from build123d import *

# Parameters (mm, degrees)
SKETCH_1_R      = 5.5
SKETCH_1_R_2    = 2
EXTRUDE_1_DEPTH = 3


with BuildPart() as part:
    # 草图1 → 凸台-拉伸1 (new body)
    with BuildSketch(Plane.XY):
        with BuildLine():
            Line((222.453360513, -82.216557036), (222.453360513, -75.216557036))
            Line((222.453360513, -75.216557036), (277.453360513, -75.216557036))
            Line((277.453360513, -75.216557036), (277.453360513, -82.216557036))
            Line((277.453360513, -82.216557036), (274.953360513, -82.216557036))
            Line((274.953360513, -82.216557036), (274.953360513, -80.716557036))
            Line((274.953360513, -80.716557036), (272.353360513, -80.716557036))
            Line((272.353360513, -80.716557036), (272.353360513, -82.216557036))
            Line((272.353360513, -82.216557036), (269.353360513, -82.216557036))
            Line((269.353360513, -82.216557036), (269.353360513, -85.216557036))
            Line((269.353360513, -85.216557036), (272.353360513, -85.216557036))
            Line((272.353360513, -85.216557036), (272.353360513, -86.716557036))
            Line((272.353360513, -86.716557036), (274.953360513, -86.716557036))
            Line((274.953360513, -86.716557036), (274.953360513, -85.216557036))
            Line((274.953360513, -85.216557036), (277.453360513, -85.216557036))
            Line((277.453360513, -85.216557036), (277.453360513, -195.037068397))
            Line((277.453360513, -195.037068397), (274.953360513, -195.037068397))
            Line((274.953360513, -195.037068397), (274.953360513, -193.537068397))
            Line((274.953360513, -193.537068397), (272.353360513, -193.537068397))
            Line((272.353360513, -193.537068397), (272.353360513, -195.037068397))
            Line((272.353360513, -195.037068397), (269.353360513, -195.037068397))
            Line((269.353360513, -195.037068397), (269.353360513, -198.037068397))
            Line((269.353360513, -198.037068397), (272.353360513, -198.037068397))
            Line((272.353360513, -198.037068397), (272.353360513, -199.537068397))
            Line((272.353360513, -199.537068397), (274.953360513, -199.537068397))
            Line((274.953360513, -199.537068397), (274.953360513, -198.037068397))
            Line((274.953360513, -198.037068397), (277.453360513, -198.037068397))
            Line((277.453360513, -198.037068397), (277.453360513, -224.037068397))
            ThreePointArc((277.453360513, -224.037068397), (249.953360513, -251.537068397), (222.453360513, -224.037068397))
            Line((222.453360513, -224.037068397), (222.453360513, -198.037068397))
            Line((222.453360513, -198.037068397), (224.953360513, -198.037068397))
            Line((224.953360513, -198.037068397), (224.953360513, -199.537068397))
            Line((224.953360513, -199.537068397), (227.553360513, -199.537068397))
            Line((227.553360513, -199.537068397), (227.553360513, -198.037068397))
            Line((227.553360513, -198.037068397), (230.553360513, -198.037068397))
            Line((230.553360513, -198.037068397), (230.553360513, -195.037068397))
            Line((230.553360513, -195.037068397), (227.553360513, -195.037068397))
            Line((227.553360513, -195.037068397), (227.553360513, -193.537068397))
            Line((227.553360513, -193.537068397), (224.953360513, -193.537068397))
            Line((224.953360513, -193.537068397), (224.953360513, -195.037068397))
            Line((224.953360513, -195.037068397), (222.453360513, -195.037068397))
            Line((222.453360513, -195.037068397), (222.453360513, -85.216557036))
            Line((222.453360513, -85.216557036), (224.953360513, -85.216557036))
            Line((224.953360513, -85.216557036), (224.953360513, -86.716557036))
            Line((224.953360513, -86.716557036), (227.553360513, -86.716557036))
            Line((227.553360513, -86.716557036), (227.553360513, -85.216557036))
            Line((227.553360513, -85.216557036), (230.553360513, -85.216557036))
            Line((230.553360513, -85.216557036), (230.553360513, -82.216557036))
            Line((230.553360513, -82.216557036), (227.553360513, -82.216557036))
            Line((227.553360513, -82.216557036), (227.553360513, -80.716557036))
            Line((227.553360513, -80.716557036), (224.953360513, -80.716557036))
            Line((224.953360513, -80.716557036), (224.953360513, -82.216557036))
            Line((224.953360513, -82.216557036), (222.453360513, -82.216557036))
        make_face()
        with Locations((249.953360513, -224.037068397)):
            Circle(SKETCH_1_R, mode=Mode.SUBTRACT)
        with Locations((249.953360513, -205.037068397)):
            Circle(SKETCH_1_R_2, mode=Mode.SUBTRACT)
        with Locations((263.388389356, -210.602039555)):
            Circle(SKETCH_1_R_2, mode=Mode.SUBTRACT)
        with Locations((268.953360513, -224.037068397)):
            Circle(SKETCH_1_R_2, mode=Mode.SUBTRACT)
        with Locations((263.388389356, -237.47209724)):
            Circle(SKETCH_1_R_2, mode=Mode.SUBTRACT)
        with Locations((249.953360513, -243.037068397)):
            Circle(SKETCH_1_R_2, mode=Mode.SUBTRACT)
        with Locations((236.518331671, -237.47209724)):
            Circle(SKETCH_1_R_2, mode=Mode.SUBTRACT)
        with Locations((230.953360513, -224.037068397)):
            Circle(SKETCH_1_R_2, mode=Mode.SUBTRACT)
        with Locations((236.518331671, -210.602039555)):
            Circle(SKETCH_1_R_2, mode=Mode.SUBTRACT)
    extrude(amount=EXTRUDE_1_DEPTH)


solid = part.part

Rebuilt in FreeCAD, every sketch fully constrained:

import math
import FreeCAD as App
import Part
import Sketcher
Q = App.Units.Quantity

doc = App.newDocument("Part")
body = doc.addObject("PartDesign::Body", "Body")

# Sketch on XY plane
sketch1 = body.newObject("Sketcher::SketchObject", "Sketch")
sketch1.AttachmentSupport = (doc.getObject("XY_Plane"), [""])
sketch1.MapMode = "FlatFace"
sketch1.addGeometry(Part.LineSegment(App.Vector(222.5, -75.2, 0), App.Vector(222.5, -82.2, 0)), False)
sketch1.addGeometry(Part.LineSegment(App.Vector(222.5, -82.2, 0), App.Vector(225, -82.2, 0)), False)
sketch1.addGeometry(Part.LineSegment(App.Vector(225, -82.2, 0), App.Vector(225, -80.7, 0)), False)
sketch1.addGeometry(Part.LineSegment(App.Vector(225, -80.7, 0), App.Vector(227.6, -80.7, 0)), False)
sketch1.addGeometry(Part.LineSegment(App.Vector(227.6, -80.7, 0), App.Vector(227.6, -82.2, 0)), False)
sketch1.addGeometry(Part.LineSegment(App.Vector(227.6, -82.2, 0), App.Vector(230.6, -82.2, 0)), False)
sketch1.addGeometry(Part.LineSegment(App.Vector(230.6, -82.2, 0), App.Vector(230.6, -85.2, 0)), False)
sketch1.addGeometry(Part.LineSegment(App.Vector(230.6, -85.2, 0), App.Vector(227.6, -85.2, 0)), False)
sketch1.addGeometry(Part.LineSegment(App.Vector(227.6, -85.2, 0), App.Vector(227.6, -86.7, 0)), False)
sketch1.addGeometry(Part.LineSegment(App.Vector(227.6, -86.7, 0), App.Vector(225, -86.7, 0)), False)
sketch1.addGeometry(Part.LineSegment(App.Vector(225, -86.7, 0), App.Vector(225, -85.2, 0)), False)
sketch1.addGeometry(Part.LineSegment(App.Vector(225, -85.2, 0), App.Vector(222.5, -85.2, 0)), False)
sketch1.addGeometry(Part.LineSegment(App.Vector(222.5, -85.2, 0), App.Vector(222.5, -195, 0)), False)
sketch1.addGeometry(Part.LineSegment(App.Vector(222.5, -195, 0), App.Vector(225, -195, 0)), False)
sketch1.addGeometry(Part.LineSegment(App.Vector(225, -195, 0), App.Vector(225, -193.5, 0)), False)
sketch1.addGeometry(Part.LineSegment(App.Vector(225, -193.5, 0), App.Vector(227.6, -193.5, 0)), False)
sketch1.addGeometry(Part.LineSegment(App.Vector(227.6, -193.5, 0), App.Vector(227.6, -195, 0)), False)
sketch1.addGeometry(Part.LineSegment(App.Vector(227.6, -195, 0), App.Vector(230.6, -195, 0)), False)
sketch1.addGeometry(Part.LineSegment(App.Vector(230.6, -195, 0), App.Vector(230.6, -198, 0)), False)
sketch1.addGeometry(Part.LineSegment(App.Vector(230.6, -198, 0), App.Vector(227.6, -198, 0)), False)
sketch1.addGeometry(Part.LineSegment(App.Vector(227.6, -198, 0), App.Vector(227.6, -199.5, 0)), False)
sketch1.addGeometry(Part.LineSegment(App.Vector(227.6, -199.5, 0), App.Vector(225, -199.5, 0)), False)
sketch1.addGeometry(Part.LineSegment(App.Vector(225, -199.5, 0), App.Vector(225, -198, 0)), False)
sketch1.addGeometry(Part.LineSegment(App.Vector(225, -198, 0), App.Vector(222.5, -198, 0)), False)
sketch1.addGeometry(Part.LineSegment(App.Vector(222.5, -198, 0), App.Vector(222.5, -224, 0)), False)
sketch1.addGeometry(Part.ArcOfCircle(Part.Circle(App.Vector(250, -224, 0), App.Vector(0, 0, 1), 27.5), math.radians(180), math.radians(360)), False)
sketch1.addGeometry(Part.LineSegment(App.Vector(277.5, -224, 0), App.Vector(277.5, -198, 0)), False)
sketch1.addGeometry(Part.LineSegment(App.Vector(277.5, -198, 0), App.Vector(275, -198, 0)), False)
sketch1.addGeometry(Part.LineSegment(App.Vector(275, -198, 0), App.Vector(275, -199.5, 0)), False)
sketch1.addGeometry(Part.LineSegment(App.Vector(275, -199.5, 0), App.Vector(272.4, -199.5, 0)), False)
sketch1.addGeometry(Part.LineSegment(App.Vector(272.4, -199.5, 0), App.Vector(272.4, -198, 0)), False)
sketch1.addGeometry(Part.LineSegment(App.Vector(272.4, -198, 0), App.Vector(269.4, -198, 0)), False)
sketch1.addGeometry(Part.LineSegment(App.Vector(269.4, -198, 0), App.Vector(269.4, -195, 0)), False)
sketch1.addGeometry(Part.LineSegment(App.Vector(269.4, -195, 0), App.Vector(272.4, -195, 0)), False)
sketch1.addGeometry(Part.LineSegment(App.Vector(272.4, -195, 0), App.Vector(272.4, -193.5, 0)), False)
sketch1.addGeometry(Part.LineSegment(App.Vector(272.4, -193.5, 0), App.Vector(275, -193.5, 0)), False)
sketch1.addGeometry(Part.LineSegment(App.Vector(275, -193.5, 0), App.Vector(275, -195, 0)), False)
sketch1.addGeometry(Part.LineSegment(App.Vector(275, -195, 0), App.Vector(277.5, -195, 0)), False)
sketch1.addGeometry(Part.LineSegment(App.Vector(277.5, -195, 0), App.Vector(277.5, -85.2, 0)), False)
sketch1.addGeometry(Part.LineSegment(App.Vector(277.5, -85.2, 0), App.Vector(275, -85.2, 0)), False)
sketch1.addGeometry(Part.LineSegment(App.Vector(275, -85.2, 0), App.Vector(275, -86.7, 0)), False)
sketch1.addGeometry(Part.LineSegment(App.Vector(275, -86.7, 0), App.Vector(272.4, -86.7, 0)), False)
sketch1.addGeometry(Part.LineSegment(App.Vector(272.4, -86.7, 0), App.Vector(272.4, -85.2, 0)), False)
sketch1.addGeometry(Part.LineSegment(App.Vector(272.4, -85.2, 0), App.Vector(269.4, -85.2, 0)), False)
sketch1.addGeometry(Part.LineSegment(App.Vector(269.4, -85.2, 0), App.Vector(269.4, -82.2, 0)), False)
sketch1.addGeometry(Part.LineSegment(App.Vector(269.4, -82.2, 0), App.Vector(272.4, -82.2, 0)), False)
sketch1.addGeometry(Part.LineSegment(App.Vector(272.4, -82.2, 0), App.Vector(272.4, -80.7, 0)), False)
sketch1.addGeometry(Part.LineSegment(App.Vector(272.4, -80.7, 0), App.Vector(275, -80.7, 0)), False)
sketch1.addGeometry(Part.LineSegment(App.Vector(275, -80.7, 0), App.Vector(275, -82.2, 0)), False)
sketch1.addGeometry(Part.LineSegment(App.Vector(275, -82.2, 0), App.Vector(277.5, -82.2, 0)), False)
sketch1.addGeometry(Part.LineSegment(App.Vector(277.5, -82.2, 0), App.Vector(277.5, -75.2, 0)), False)
sketch1.addGeometry(Part.LineSegment(App.Vector(277.5, -75.2, 0), App.Vector(222.5, -75.2, 0)), False)
sketch1.addGeometry(Part.Circle(App.Vector(263.4, -237.5, 0), App.Vector(0, 0, 1), 2), False)
sketch1.addGeometry(Part.Circle(App.Vector(250, -243, 0), App.Vector(0, 0, 1), 2), False)
sketch1.addGeometry(Part.Circle(App.Vector(236.5, -237.5, 0), App.Vector(0, 0, 1), 2), False)
sketch1.addGeometry(Part.Circle(App.Vector(269, -224, 0), App.Vector(0, 0, 1), 2), False)
sketch1.addGeometry(Part.Circle(App.Vector(263.4, -210.6, 0), App.Vector(0, 0, 1), 2), False)
sketch1.addGeometry(Part.Circle(App.Vector(250, -224, 0), App.Vector(0, 0, 1), 5.5), False)
sketch1.addGeometry(Part.Circle(App.Vector(231, -224, 0), App.Vector(0, 0, 1), 2), False)
sketch1.addGeometry(Part.Circle(App.Vector(250, -205, 0), App.Vector(0, 0, 1), 2), False)
sketch1.addGeometry(Part.Circle(App.Vector(236.5, -210.6, 0), App.Vector(0, 0, 1), 2), False)
sketch1.addConstraint(Sketcher.Constraint("Coincident", 0, 2, 1, 1))
sketch1.addConstraint(Sketcher.Constraint("Coincident", 1, 2, 2, 1))
sketch1.addConstraint(Sketcher.Constraint("Coincident", 2, 2, 3, 1))
sketch1.addConstraint(Sketcher.Constraint("Coincident", 3, 2, 4, 1))
sketch1.addConstraint(Sketcher.Constraint("Coincident", 4, 2, 5, 1))
sketch1.addConstraint(Sketcher.Constraint("Coincident", 5, 2, 6, 1))
sketch1.addConstraint(Sketcher.Constraint("Coincident", 6, 2, 7, 1))
sketch1.addConstraint(Sketcher.Constraint("Coincident", 7, 2, 8, 1))
sketch1.addConstraint(Sketcher.Constraint("Coincident", 8, 2, 9, 1))
sketch1.addConstraint(Sketcher.Constraint("Coincident", 9, 2, 10, 1))
sketch1.addConstraint(Sketcher.Constraint("Coincident", 10, 2, 11, 1))
sketch1.addConstraint(Sketcher.Constraint("Coincident", 11, 2, 12, 1))
sketch1.addConstraint(Sketcher.Constraint("Coincident", 12, 2, 13, 1))
sketch1.addConstraint(Sketcher.Constraint("Coincident", 13, 2, 14, 1))
sketch1.addConstraint(Sketcher.Constraint("Coincident", 14, 2, 15, 1))
sketch1.addConstraint(Sketcher.Constraint("Coincident", 15, 2, 16, 1))
sketch1.addConstraint(Sketcher.Constraint("Coincident", 16, 2, 17, 1))
sketch1.addConstraint(Sketcher.Constraint("Coincident", 17, 2, 18, 1))
sketch1.addConstraint(Sketcher.Constraint("Coincident", 18, 2, 19, 1))
sketch1.addConstraint(Sketcher.Constraint("Coincident", 19, 2, 20, 1))
sketch1.addConstraint(Sketcher.Constraint("Coincident", 20, 2, 21, 1))
sketch1.addConstraint(Sketcher.Constraint("Coincident", 21, 2, 22, 1))
sketch1.addConstraint(Sketcher.Constraint("Coincident", 22, 2, 23, 1))
sketch1.addConstraint(Sketcher.Constraint("Coincident", 23, 2, 24, 1))
sketch1.addConstraint(Sketcher.Constraint("Tangent", 24, 2, 25, 1))
sketch1.addConstraint(Sketcher.Constraint("Tangent", 25, 2, 26, 1))
sketch1.addConstraint(Sketcher.Constraint("Coincident", 26, 2, 27, 1))
sketch1.addConstraint(Sketcher.Constraint("Coincident", 27, 2, 28, 1))
sketch1.addConstraint(Sketcher.Constraint("Coincident", 28, 2, 29, 1))
sketch1.addConstraint(Sketcher.Constraint("Coincident", 29, 2, 30, 1))
sketch1.addConstraint(Sketcher.Constraint("Coincident", 30, 2, 31, 1))
sketch1.addConstraint(Sketcher.Constraint("Coincident", 31, 2, 32, 1))
sketch1.addConstraint(Sketcher.Constraint("Coincident", 32, 2, 33, 1))
sketch1.addConstraint(Sketcher.Constraint("Coincident", 33, 2, 34, 1))
sketch1.addConstraint(Sketcher.Constraint("Coincident", 34, 2, 35, 1))
sketch1.addConstraint(Sketcher.Constraint("Coincident", 35, 2, 36, 1))
sketch1.addConstraint(Sketcher.Constraint("Coincident", 36, 2, 37, 1))
sketch1.addConstraint(Sketcher.Constraint("Coincident", 37, 2, 38, 1))
sketch1.addConstraint(Sketcher.Constraint("Coincident", 38, 2, 39, 1))
sketch1.addConstraint(Sketcher.Constraint("Coincident", 39, 2, 40, 1))
sketch1.addConstraint(Sketcher.Constraint("Coincident", 40, 2, 41, 1))
sketch1.addConstraint(Sketcher.Constraint("Coincident", 41, 2, 42, 1))
sketch1.addConstraint(Sketcher.Constraint("Coincident", 42, 2, 43, 1))
sketch1.addConstraint(Sketcher.Constraint("Coincident", 43, 2, 44, 1))
sketch1.addConstraint(Sketcher.Constraint("Coincident", 44, 2, 45, 1))
sketch1.addConstraint(Sketcher.Constraint("Coincident", 45, 2, 46, 1))
sketch1.addConstraint(Sketcher.Constraint("Coincident", 46, 2, 47, 1))
sketch1.addConstraint(Sketcher.Constraint("Coincident", 47, 2, 48, 1))
sketch1.addConstraint(Sketcher.Constraint("Coincident", 48, 2, 49, 1))
sketch1.addConstraint(Sketcher.Constraint("Coincident", 49, 2, 50, 1))
sketch1.addConstraint(Sketcher.Constraint("Coincident", 50, 2, 51, 1))
sketch1.addConstraint(Sketcher.Constraint("Coincident", 51, 2, 0, 1))
sketch1.addConstraint(Sketcher.Constraint("Vertical", 0))
sketch1.addConstraint(Sketcher.Constraint("Horizontal", 1))
sketch1.addConstraint(Sketcher.Constraint("Vertical", 2))
sketch1.addConstraint(Sketcher.Constraint("Horizontal", 3))
sketch1.addConstraint(Sketcher.Constraint("Vertical", 4))
sketch1.addConstraint(Sketcher.Constraint("Horizontal", 5))
sketch1.addConstraint(Sketcher.Constraint("Vertical", 6))
sketch1.addConstraint(Sketcher.Constraint("Horizontal", 7))
sketch1.addConstraint(Sketcher.Constraint("Vertical", 8))
sketch1.addConstraint(Sketcher.Constraint("Horizontal", 9))
sketch1.addConstraint(Sketcher.Constraint("Vertical", 10))
sketch1.addConstraint(Sketcher.Constraint("Horizontal", 11))
sketch1.addConstraint(Sketcher.Constraint("Vertical", 12))
sketch1.addConstraint(Sketcher.Constraint("Horizontal", 13))
sketch1.addConstraint(Sketcher.Constraint("Vertical", 14))
sketch1.addConstraint(Sketcher.Constraint("Horizontal", 15))
sketch1.addConstraint(Sketcher.Constraint("Vertical", 16))
sketch1.addConstraint(Sketcher.Constraint("Horizontal", 17))
sketch1.addConstraint(Sketcher.Constraint("Vertical", 18))
sketch1.addConstraint(Sketcher.Constraint("Horizontal", 19))
sketch1.addConstraint(Sketcher.Constraint("Vertical", 20))
sketch1.addConstraint(Sketcher.Constraint("Horizontal", 21))
sketch1.addConstraint(Sketcher.Constraint("Vertical", 22))
sketch1.addConstraint(Sketcher.Constraint("Horizontal", 23))
sketch1.addConstraint(Sketcher.Constraint("Vertical", 24))
sketch1.addConstraint(Sketcher.Constraint("Vertical", 26))
sketch1.addConstraint(Sketcher.Constraint("Horizontal", 27))
sketch1.addConstraint(Sketcher.Constraint("Vertical", 28))
sketch1.addConstraint(Sketcher.Constraint("Horizontal", 29))
sketch1.addConstraint(Sketcher.Constraint("Vertical", 30))
sketch1.addConstraint(Sketcher.Constraint("Horizontal", 31))
sketch1.addConstraint(Sketcher.Constraint("Vertical", 32))
sketch1.addConstraint(Sketcher.Constraint("Horizontal", 33))
sketch1.addConstraint(Sketcher.Constraint("Vertical", 34))
sketch1.addConstraint(Sketcher.Constraint("Horizontal", 35))
sketch1.addConstraint(Sketcher.Constraint("Vertical", 36))
sketch1.addConstraint(Sketcher.Constraint("Horizontal", 37))
sketch1.addConstraint(Sketcher.Constraint("Vertical", 38))
sketch1.addConstraint(Sketcher.Constraint("Horizontal", 39))
sketch1.addConstraint(Sketcher.Constraint("Vertical", 40))
sketch1.addConstraint(Sketcher.Constraint("Horizontal", 41))
sketch1.addConstraint(Sketcher.Constraint("Vertical", 42))
sketch1.addConstraint(Sketcher.Constraint("Horizontal", 43))
sketch1.addConstraint(Sketcher.Constraint("Vertical", 44))
sketch1.addConstraint(Sketcher.Constraint("Horizontal", 45))
sketch1.addConstraint(Sketcher.Constraint("Vertical", 46))
sketch1.addConstraint(Sketcher.Constraint("Horizontal", 47))
sketch1.addConstraint(Sketcher.Constraint("Vertical", 48))
sketch1.addConstraint(Sketcher.Constraint("Horizontal", 49))
sketch1.addConstraint(Sketcher.Constraint("Vertical", 50))
sketch1.addConstraint(Sketcher.Constraint("Horizontal", 51))
sketch1.addConstraint(Sketcher.Constraint("Coincident", 57, 3, 25, 3))
sketch1.addConstraint(Sketcher.Constraint("Equal", 52, 53))
sketch1.addConstraint(Sketcher.Constraint("Equal", 53, 54))
sketch1.addConstraint(Sketcher.Constraint("Equal", 54, 55))
sketch1.addConstraint(Sketcher.Constraint("Equal", 55, 56))
sketch1.addConstraint(Sketcher.Constraint("Equal", 56, 58))
sketch1.addConstraint(Sketcher.Constraint("Equal", 58, 59))
sketch1.addConstraint(Sketcher.Constraint("Equal", 59, 60))
sketch1.addConstraint(Sketcher.Constraint("Horizontal", 52, 3, 54, 3))
sketch1.addConstraint(Sketcher.Constraint("Horizontal", 25, 3, 55, 3))
sketch1.addConstraint(Sketcher.Constraint("Horizontal", 57, 3, 58, 3))
sketch1.addConstraint(Sketcher.Constraint("Horizontal", 56, 3, 60, 3))
sketch1.addConstraint(Sketcher.Constraint("Horizontal", 1, 2, 4, 2))
sketch1.addConstraint(Sketcher.Constraint("Horizontal", 7, 2, 10, 2))
sketch1.addConstraint(Sketcher.Constraint("Horizontal", 13, 2, 16, 2))
sketch1.addConstraint(Sketcher.Constraint("Horizontal", 19, 2, 22, 2))
sketch1.addConstraint(Sketcher.Constraint("Horizontal", 23, 2, 26, 2))
sketch1.addConstraint(Sketcher.Constraint("Horizontal", 21, 2, 28, 2))
sketch1.addConstraint(Sketcher.Constraint("Horizontal", 27, 2, 30, 2))
sketch1.addConstraint(Sketcher.Constraint("Horizontal", 17, 2, 32, 2))
sketch1.addConstraint(Sketcher.Constraint("Horizontal", 15, 2, 34, 2))
sketch1.addConstraint(Sketcher.Constraint("Horizontal", 33, 2, 36, 2))
sketch1.addConstraint(Sketcher.Constraint("Horizontal", 11, 2, 38, 2))
sketch1.addConstraint(Sketcher.Constraint("Horizontal", 9, 2, 40, 2))
sketch1.addConstraint(Sketcher.Constraint("Horizontal", 39, 2, 42, 2))
sketch1.addConstraint(Sketcher.Constraint("Horizontal", 5, 2, 44, 2))
sketch1.addConstraint(Sketcher.Constraint("Horizontal", 3, 2, 46, 2))
sketch1.addConstraint(Sketcher.Constraint("Horizontal", 45, 2, 48, 2))
sketch1.addConstraint(Sketcher.Constraint("Vertical", 25, 3, 53, 3))
sketch1.addConstraint(Sketcher.Constraint("Vertical", 52, 3, 56, 3))
sketch1.addConstraint(Sketcher.Constraint("Vertical", 57, 3, 59, 3))
sketch1.addConstraint(Sketcher.Constraint("Vertical", 54, 3, 60, 3))
sketch1.addConstraint(Sketcher.Constraint("Vertical", 4, 2, 7, 2))
sketch1.addConstraint(Sketcher.Constraint("Vertical", 2, 2, 9, 2))
sketch1.addConstraint(Sketcher.Constraint("Vertical", 0, 2, 11, 2))
sketch1.addConstraint(Sketcher.Constraint("Vertical", 10, 2, 13, 2))
sketch1.addConstraint(Sketcher.Constraint("Vertical", 8, 2, 15, 2))
sketch1.addConstraint(Sketcher.Constraint("Vertical", 6, 2, 17, 2))
sketch1.addConstraint(Sketcher.Constraint("Vertical", 16, 2, 19, 2))
sketch1.addConstraint(Sketcher.Constraint("Vertical", 14, 2, 21, 2))
sketch1.addConstraint(Sketcher.Constraint("Vertical", 12, 2, 23, 2))
sketch1.addConstraint(Sketcher.Constraint("Vertical", 30, 2, 33, 2))
sketch1.addConstraint(Sketcher.Constraint("Vertical", 28, 2, 35, 2))
sketch1.addConstraint(Sketcher.Constraint("Vertical", 26, 2, 37, 2))
sketch1.addConstraint(Sketcher.Constraint("Vertical", 36, 2, 39, 2))
sketch1.addConstraint(Sketcher.Constraint("Vertical", 34, 2, 41, 2))
sketch1.addConstraint(Sketcher.Constraint("Vertical", 32, 2, 43, 2))
sketch1.addConstraint(Sketcher.Constraint("Vertical", 42, 2, 45, 2))
sketch1.addConstraint(Sketcher.Constraint("Vertical", 40, 2, 47, 2))
sketch1.addConstraint(Sketcher.Constraint("Vertical", 38, 2, 49, 2))
sketch1.addConstraint(Sketcher.Constraint("Equal", 23, 27))
sketch1.addConstraint(Sketcher.Constraint("Equal", 21, 29))
sketch1.addConstraint(Sketcher.Constraint("Equal", 19, 31))
sketch1.addConstraint(Sketcher.Constraint("Equal", 45, 6))
sketch1.addConstraint(Sketcher.Constraint("Equal", 4, 8))
sketch1.addConstraint(Sketcher.Constraint("Equal", 10, 14))
sketch1.addConstraint(Sketcher.Constraint("Equal", 6, 18))
sketch1.addConstraint(Sketcher.Constraint("Equal", 16, 20))
sketch1.addConstraint(Sketcher.Constraint("Diameter", 52, Q("4 mm")))
sketch1.addConstraint(Sketcher.Constraint("Diameter", 57, Q("11 mm")))
sketch1.addConstraint(Sketcher.Constraint("Radius", 25, Q("27.5 mm")))
sketch1.addConstraint(Sketcher.Constraint("DistanceX", 5, 1, 5, 2, Q("3 mm")))
sketch1.addConstraint(Sketcher.Constraint("DistanceY", 0, 2, 0, 1, Q("7 mm")))
sketch1.addConstraint(Sketcher.Constraint("DistanceY", 24, 2, 24, 1, Q("26 mm")))
sketch1.addConstraint(Sketcher.Constraint("DistanceX", 1, 1, 1, 2, Q("2.5 mm")))
sketch1.addConstraint(Sketcher.Constraint("DistanceX", 3, 1, 3, 2, Q("2.6 mm")))
sketch1.addConstraint(Sketcher.Constraint("DistanceY", 2, 1, 2, 2, Q("1.5 mm")))
sketch1.addConstraint(Sketcher.Constraint("DistanceY", 12, 2, 12, 1, Q("109.820511 mm")))
sketch1.addConstraint(Sketcher.Constraint("DistanceX", -1, 1, 25, 3, Q("249.953361 mm")))
sketch1.addConstraint(Sketcher.Constraint("DistanceY", 25, 3, -1, 1, Q("224.037068 mm")))
sketch1.addConstraint(Sketcher.Constraint("DistanceX", -1, 1, 52, 3, Q("263.388389 mm")))
sketch1.addConstraint(Sketcher.Constraint("DistanceY", 53, 3, -1, 1, Q("243.037068 mm")))
sketch1.addConstraint(Sketcher.Constraint("DistanceX", -1, 1, 54, 3, Q("236.518332 mm")))
sketch1.addConstraint(Sketcher.Constraint("DistanceX", -1, 1, 55, 3, Q("268.953361 mm")))
sketch1.addConstraint(Sketcher.Constraint("DistanceY", 56, 3, -1, 1, Q("210.60204 mm")))
sketch1.addConstraint(Sketcher.Constraint("DistanceX", -1, 1, 58, 3, Q("230.953361 mm")))
sketch1.addConstraint(Sketcher.Constraint("DistanceY", 59, 3, -1, 1, Q("205.037068 mm")))
sketch1.addConstraint(Sketcher.Constraint("DistanceY", 52, 3, -1, 1, Q("237.472097 mm")))
pad1 = body.newObject("PartDesign::Pad", "Pad")
pad1.Profile = sketch1
pad1.Length = 3

doc.recompute()
